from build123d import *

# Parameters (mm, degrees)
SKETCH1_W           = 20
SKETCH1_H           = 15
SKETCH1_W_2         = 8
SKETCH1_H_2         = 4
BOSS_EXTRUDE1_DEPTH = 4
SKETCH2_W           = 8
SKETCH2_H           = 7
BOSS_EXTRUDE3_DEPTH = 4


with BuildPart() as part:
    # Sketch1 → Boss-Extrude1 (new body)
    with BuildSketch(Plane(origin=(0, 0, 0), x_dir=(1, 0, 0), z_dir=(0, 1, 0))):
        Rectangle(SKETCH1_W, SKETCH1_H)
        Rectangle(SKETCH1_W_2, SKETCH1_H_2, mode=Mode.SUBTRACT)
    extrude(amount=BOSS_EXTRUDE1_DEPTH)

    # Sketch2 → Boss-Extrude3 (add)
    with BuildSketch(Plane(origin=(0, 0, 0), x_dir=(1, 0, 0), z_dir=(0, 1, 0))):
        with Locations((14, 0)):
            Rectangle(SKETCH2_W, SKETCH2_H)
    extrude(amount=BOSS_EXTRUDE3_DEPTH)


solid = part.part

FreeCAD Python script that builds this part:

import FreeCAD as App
import Part
import Sketcher


def add_polygon(sketch, points):
    """Adds a closed chain of lines whose ends are joined by coincident constraints."""
    first, n = sketch.GeometryCount, len(points)
    for a, b in zip(points, points[1:] + points[:1]):
        sketch.addGeometry(Part.LineSegment(App.Vector(*a, 0), App.Vector(*b, 0)), False)
    for i in range(n):
        sketch.addConstraint(Sketcher.Constraint("Coincident", first + i, 2, first + (i + 1) % n, 1))

doc = App.newDocument("Part")
body = doc.addObject("PartDesign::Body", "Body")

# Sketch on XZ plane
sketch1 = body.newObject("Sketcher::SketchObject", "Sketch")
sketch1.AttachmentSupport = (doc.getObject("XZ_Plane"), [""])
sketch1.MapMode = "FlatFace"
add_polygon(sketch1, [(-10, -7.5), (-10, 7.5), (10, 7.5), (10, -7.5)])  # lines 0-3
add_polygon(sketch1, [(4, 2), (-4, 2), (-4, -2), (4, -2)])  # lines 4-7
sketch1.addConstraint([
    Sketcher.Constraint("Vertical", 0),
    Sketcher.Constraint("Horizontal", 1),
    Sketcher.Constraint("Vertical", 2),
    Sketcher.Constraint("Horizontal", 3),
    Sketcher.Constraint("Horizontal", 4),
    Sketcher.Constraint("Vertical", 5),
    Sketcher.Constraint("Horizontal", 6),
    Sketcher.Constraint("Vertical", 7),
    Sketcher.Constraint("Symmetric", 0, 2, 2, 2, -1, 1),
    Sketcher.Constraint("Symmetric", 4, 2, 6, 2, -1, 1),
    Sketcher.Constraint("DistanceX", 1, 1, 1, 2, 20.0),
    Sketcher.Constraint("DistanceX", 4, 2, 4, 1, 8.0),
    Sketcher.Constraint("DistanceY", 0, 1, 0, 2, 15.0),
    Sketcher.Constraint("DistanceY", 5, 2, 5, 1, 4.0),
])
pad1 = body.newObject("PartDesign::Pad", "Pad")
pad1.Profile = sketch1
pad1.Length = 4
pad1.Reversed = True

# Sketch on XZ plane
sketch2 = body.newObject("Sketcher::SketchObject", "Sketch001")
sketch2.AttachmentSupport = (doc.getObject("XZ_Plane"), [""])
sketch2.MapMode = "FlatFace"
add_polygon(sketch2, [(10, -4), (10, 4), (18, 4), (18, -4)])  # lines 0-3
sketch2.addConstraint([
    Sketcher.Constraint("Vertical", 0),
    Sketcher.Constraint("Horizontal", 1),
    Sketcher.Constraint("Vertical", 2),
    Sketcher.Constraint("Horizontal", 3),
    Sketcher.Constraint("DistanceX", 1, 1, 1, 2, 8.0),
    Sketcher.Constraint("DistanceY", 0, 1, 0, 2, 7.0),
    Sketcher.Constraint("DistanceX", -1, 1, 0, 2, 10.0),
    Sketcher.Constraint("DistanceY", -1, 1, 0, 2, 3.5),
])
pad2 = body.newObject("PartDesign::Pad", "Pad001")
pad2.Profile = sketch2
pad2.Length = 4
pad2.Reversed = True

doc.recompute()
